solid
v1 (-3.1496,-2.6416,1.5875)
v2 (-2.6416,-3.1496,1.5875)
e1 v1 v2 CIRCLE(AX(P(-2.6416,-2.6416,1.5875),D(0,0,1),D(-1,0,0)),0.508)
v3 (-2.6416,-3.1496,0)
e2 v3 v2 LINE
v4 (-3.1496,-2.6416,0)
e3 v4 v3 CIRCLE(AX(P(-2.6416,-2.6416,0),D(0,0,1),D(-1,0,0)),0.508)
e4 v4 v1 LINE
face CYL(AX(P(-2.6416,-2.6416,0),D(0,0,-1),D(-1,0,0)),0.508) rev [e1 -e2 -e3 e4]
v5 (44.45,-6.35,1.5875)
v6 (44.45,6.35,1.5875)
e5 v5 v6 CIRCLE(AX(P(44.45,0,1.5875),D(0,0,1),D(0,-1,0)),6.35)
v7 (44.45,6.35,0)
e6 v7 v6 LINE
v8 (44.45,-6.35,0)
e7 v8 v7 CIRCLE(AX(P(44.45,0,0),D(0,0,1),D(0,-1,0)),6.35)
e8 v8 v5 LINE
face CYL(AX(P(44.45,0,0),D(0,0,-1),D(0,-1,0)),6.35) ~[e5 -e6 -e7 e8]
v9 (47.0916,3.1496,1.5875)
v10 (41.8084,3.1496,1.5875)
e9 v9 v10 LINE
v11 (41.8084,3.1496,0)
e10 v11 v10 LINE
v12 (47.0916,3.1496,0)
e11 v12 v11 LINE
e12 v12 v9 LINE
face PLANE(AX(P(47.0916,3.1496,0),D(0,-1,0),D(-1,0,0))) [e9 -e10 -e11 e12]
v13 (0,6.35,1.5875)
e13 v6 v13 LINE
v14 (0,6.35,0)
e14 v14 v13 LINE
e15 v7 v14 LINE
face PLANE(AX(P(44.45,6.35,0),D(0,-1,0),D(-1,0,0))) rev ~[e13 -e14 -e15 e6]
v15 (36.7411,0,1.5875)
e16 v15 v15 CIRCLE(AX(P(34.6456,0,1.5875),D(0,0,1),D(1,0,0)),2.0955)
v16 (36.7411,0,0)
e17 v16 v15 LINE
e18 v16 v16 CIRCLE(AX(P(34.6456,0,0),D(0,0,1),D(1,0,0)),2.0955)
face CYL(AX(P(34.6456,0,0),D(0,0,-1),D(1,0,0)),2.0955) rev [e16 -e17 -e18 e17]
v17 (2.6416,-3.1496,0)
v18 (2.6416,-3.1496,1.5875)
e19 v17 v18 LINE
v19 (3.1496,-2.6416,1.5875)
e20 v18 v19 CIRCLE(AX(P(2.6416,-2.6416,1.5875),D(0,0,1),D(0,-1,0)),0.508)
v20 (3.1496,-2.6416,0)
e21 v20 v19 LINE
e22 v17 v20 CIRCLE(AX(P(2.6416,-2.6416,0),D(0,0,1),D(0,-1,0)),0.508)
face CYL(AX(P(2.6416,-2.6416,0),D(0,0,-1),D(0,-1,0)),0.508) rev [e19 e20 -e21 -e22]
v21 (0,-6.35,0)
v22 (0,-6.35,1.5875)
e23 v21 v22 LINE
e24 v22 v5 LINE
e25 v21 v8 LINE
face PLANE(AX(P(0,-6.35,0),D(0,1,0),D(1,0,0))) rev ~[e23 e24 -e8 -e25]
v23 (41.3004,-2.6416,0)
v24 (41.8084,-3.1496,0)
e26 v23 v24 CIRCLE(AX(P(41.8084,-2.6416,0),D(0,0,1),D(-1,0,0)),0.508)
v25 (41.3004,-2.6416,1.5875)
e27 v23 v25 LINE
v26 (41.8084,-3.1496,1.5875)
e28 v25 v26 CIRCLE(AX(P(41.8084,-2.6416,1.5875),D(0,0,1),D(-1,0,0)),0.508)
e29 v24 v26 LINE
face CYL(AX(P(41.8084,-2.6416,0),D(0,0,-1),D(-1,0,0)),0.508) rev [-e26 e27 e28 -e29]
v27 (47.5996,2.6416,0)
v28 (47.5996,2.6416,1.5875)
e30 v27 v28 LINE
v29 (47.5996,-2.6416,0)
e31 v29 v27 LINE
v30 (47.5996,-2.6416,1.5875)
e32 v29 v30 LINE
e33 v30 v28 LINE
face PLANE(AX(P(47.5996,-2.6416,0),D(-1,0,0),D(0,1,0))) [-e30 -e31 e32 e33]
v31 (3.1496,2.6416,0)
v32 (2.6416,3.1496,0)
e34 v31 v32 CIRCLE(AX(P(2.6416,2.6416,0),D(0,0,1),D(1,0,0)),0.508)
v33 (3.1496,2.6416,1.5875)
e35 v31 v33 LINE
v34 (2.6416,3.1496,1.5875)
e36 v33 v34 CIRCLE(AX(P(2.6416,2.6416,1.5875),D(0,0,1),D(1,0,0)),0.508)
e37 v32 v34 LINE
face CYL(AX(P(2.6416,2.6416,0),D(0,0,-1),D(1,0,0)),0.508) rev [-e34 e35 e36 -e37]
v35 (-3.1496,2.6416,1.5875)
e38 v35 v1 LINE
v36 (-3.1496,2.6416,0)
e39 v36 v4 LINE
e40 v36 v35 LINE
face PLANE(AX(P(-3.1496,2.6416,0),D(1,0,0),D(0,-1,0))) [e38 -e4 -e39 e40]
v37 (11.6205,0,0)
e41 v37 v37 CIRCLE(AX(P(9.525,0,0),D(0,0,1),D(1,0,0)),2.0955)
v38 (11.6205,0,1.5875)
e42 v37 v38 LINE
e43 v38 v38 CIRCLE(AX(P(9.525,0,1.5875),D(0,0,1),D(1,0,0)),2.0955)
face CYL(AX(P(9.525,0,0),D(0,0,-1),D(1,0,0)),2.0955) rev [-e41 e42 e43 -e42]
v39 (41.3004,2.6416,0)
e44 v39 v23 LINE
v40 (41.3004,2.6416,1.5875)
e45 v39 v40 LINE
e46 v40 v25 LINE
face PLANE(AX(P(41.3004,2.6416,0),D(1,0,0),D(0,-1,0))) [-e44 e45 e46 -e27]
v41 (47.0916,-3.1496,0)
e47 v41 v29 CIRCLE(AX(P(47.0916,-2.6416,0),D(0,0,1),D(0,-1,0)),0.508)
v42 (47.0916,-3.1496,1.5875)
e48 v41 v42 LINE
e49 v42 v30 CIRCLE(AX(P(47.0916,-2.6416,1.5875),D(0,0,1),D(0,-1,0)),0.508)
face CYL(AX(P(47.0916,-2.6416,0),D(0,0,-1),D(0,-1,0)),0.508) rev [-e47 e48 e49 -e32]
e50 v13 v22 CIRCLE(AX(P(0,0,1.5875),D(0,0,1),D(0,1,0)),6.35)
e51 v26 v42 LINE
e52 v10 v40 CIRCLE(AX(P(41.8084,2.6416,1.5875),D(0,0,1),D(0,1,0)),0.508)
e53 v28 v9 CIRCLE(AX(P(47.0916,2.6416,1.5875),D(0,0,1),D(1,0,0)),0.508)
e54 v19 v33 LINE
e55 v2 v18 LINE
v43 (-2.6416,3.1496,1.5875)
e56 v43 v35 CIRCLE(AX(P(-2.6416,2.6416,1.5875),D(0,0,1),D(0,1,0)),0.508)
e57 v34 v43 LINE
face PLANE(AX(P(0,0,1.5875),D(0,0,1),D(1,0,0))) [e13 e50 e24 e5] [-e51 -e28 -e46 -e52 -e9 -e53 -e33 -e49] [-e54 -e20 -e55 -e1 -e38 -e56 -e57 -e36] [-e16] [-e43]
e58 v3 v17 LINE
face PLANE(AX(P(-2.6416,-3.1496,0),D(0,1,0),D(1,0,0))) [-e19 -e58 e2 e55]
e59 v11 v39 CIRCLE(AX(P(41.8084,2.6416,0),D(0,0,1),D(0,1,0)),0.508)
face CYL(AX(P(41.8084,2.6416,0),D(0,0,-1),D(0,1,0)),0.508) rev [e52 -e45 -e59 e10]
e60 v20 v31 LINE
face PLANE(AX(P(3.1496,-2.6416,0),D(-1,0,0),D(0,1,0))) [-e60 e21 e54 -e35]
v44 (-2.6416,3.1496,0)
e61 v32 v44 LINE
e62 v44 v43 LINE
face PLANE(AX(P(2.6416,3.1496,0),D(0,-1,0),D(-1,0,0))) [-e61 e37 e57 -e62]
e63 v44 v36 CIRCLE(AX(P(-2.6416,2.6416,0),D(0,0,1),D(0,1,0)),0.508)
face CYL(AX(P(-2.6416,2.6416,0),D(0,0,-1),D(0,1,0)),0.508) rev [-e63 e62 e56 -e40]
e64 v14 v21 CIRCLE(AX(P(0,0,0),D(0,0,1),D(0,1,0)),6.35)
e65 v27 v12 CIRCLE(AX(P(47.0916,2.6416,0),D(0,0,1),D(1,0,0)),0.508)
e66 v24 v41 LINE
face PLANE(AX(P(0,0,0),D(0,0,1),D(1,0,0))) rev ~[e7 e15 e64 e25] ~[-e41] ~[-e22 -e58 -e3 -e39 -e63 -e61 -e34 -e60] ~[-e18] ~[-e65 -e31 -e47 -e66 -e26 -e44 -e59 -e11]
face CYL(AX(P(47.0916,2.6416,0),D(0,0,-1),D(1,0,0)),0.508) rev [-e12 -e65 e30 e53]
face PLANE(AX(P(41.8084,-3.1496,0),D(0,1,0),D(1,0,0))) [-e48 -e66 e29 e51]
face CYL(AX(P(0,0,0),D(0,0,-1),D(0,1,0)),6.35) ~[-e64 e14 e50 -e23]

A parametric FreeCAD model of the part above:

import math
import FreeCAD as App
import Part
import Sketcher
from FreeCAD import Vector
Q = App.Units.Quantity

doc = App.newDocument("Part")
body = doc.addObject("PartDesign::Body", "Body")

sketch1 = body.newObject("Sketcher::SketchObject", "Sketch")
sketch1.AttachmentSupport = (doc.getObject("XY_Plane"), [""])
sketch1.MapMode = "FlatFace"
sketch1.addGeometry(Part.LineSegment(Vector(44.5, 6.3, 0), Vector(0, 6.3, 0)), False)
sketch1.addGeometry(Part.ArcOfCircle(Part.Circle(Vector(0, 0, 0), Vector(0, 0, 1), 6.3), math.radians(90), math.radians(270)), False)
sketch1.addGeometry(Part.LineSegment(Vector(0, -6.3, 0), Vector(44.5, -6.3, 0)), False)
sketch1.addGeometry(Part.ArcOfCircle(Part.Circle(Vector(44.5, 0, 0), Vector(0, 0, 1), 6.3), math.radians(-90), math.radians(90)), False)
sketch1.addGeometry(Part.LineSegment(Vector(2.6, -3.1, 0), Vector(-2.6, -3.1, 0)), False)
sketch1.addGeometry(Part.ArcOfCircle(Part.Circle(Vector(-2.6, -2.6, 0), Vector(0, 0, 1), 0.5), math.radians(180), math.radians(270)), False)
sketch1.addGeometry(Part.LineSegment(Vector(-3.1, -2.6, 0), Vector(-3.1, 2.6, 0)), False)
sketch1.addGeometry(Part.ArcOfCircle(Part.Circle(Vector(-2.6, 2.6, 0), Vector(0, 0, 1), 0.5), math.radians(90), math.radians(180)), False)
sketch1.addGeometry(Part.LineSegment(Vector(-2.6, 3.1, 0), Vector(2.6, 3.1, 0)), False)
sketch1.addGeometry(Part.ArcOfCircle(Part.Circle(Vector(2.6, 2.6, 0), Vector(0, 0, 1), 0.5), math.radians(0), math.radians(90)), False)
sketch1.addGeometry(Part.LineSegment(Vector(3.1, 2.6, 0), Vector(3.1, -2.6, 0)), False)
sketch1.addGeometry(Part.ArcOfCircle(Part.Circle(Vector(2.6, -2.6, 0), Vector(0, 0, 1), 0.5), math.radians(-90), math.radians(0)), False)
sketch1.addGeometry(Part.Circle(Vector(9.5, 0, 0), Vector(0, 0, 1), 2.1), False)
sketch1.addGeometry(Part.Circle(Vector(34.6, 0, 0), Vector(0, 0, 1), 2.1), False)
sketch1.addGeometry(Part.LineSegment(Vector(47.1, -3.1, 0), Vector(41.8, -3.1, 0)), False)
sketch1.addGeometry(Part.ArcOfCircle(Part.Circle(Vector(41.8, -2.6, 0), Vector(0, 0, 1), 0.5), math.radians(180), math.radians(270)), False)
sketch1.addGeometry(Part.LineSegment(Vector(41.3, -2.6, 0), Vector(41.3, 2.6, 0)), False)
sketch1.addGeometry(Part.ArcOfCircle(Part.Circle(Vector(41.8, 2.6, 0), Vector(0, 0, 1), 0.5), math.radians(90), math.radians(180)), False)
sketch1.addGeometry(Part.LineSegment(Vector(41.8, 3.1, 0), Vector(47.1, 3.1, 0)), False)
sketch1.addGeometry(Part.ArcOfCircle(Part.Circle(Vector(47.1, 2.6, 0), Vector(0, 0, 1), 0.5), math.radians(0), math.radians(90)), False)
sketch1.addGeometry(Part.LineSegment(Vector(47.6, 2.6, 0), Vector(47.6, -2.6, 0)), False)
sketch1.addGeometry(Part.ArcOfCircle(Part.Circle(Vector(47.1, -2.6, 0), Vector(0, 0, 1), 0.5), math.radians(-90), math.radians(0)), False)
sketch1.addConstraint(Sketcher.Constraint("Tangent", 0, 2, 1, 1))
sketch1.addConstraint(Sketcher.Constraint("Tangent", 1, 2, 2, 1))
sketch1.addConstraint(Sketcher.Constraint("Tangent", 2, 2, 3, 1))
sketch1.addConstraint(Sketcher.Constraint("Tangent", 3, 2, 0, 1))
sketch1.addConstraint(Sketcher.Constraint("Tangent", 4, 2, 5, 2))
sketch1.addConstraint(Sketcher.Constraint("Tangent", 5, 1, 6, 1))
sketch1.addConstraint(Sketcher.Constraint("Tangent", 6, 2, 7, 2))
sketch1.addConstraint(Sketcher.Constraint("Tangent", 7, 1, 8, 1))
sketch1.addConstraint(Sketcher.Constraint("Tangent", 8, 2, 9, 2))
sketch1.addConstraint(Sketcher.Constraint("Tangent", 9, 1, 10, 1))
sketch1.addConstraint(Sketcher.Constraint("Tangent", 10, 2, 11, 2))
sketch1.addConstraint(Sketcher.Constraint("Tangent", 11, 1, 4, 1))
sketch1.addConstraint(Sketcher.Constraint("Tangent", 14, 2, 15, 2))
sketch1.addConstraint(Sketcher.Constraint("Tangent", 15, 1, 16, 1))
sketch1.addConstraint(Sketcher.Constraint("Tangent", 16, 2, 17, 2))
sketch1.addConstraint(Sketcher.Constraint("Tangent", 17, 1, 18, 1))
sketch1.addConstraint(Sketcher.Constraint("Tangent", 18, 2, 19, 2))
sketch1.addConstraint(Sketcher.Constraint("Tangent", 19, 1, 20, 1))
sketch1.addConstraint(Sketcher.Constraint("Tangent", 20, 2, 21, 2))
sketch1.addConstraint(Sketcher.Constraint("Tangent", 21, 1, 14, 1))
sketch1.addConstraint(Sketcher.Constraint("Horizontal", 0))
sketch1.addConstraint(Sketcher.Constraint("Horizontal", 2))
sketch1.addConstraint(Sketcher.Constraint("Horizontal", 4))
sketch1.addConstraint(Sketcher.Constraint("Vertical", 6))
sketch1.addConstraint(Sketcher.Constraint("Horizontal", 8))
sketch1.addConstraint(Sketcher.Constraint("Vertical", 10))
sketch1.addConstraint(Sketcher.Constraint("Horizontal", 14))
sketch1.addConstraint(Sketcher.Constraint("Vertical", 16))
sketch1.addConstraint(Sketcher.Constraint("Horizontal", 18))
sketch1.addConstraint(Sketcher.Constraint("Vertical", 20))
sketch1.addConstraint(Sketcher.Constraint("Coincident", 1, 3, -1, 1))
sketch1.addConstraint(Sketcher.Constraint("Equal", 5, 7))
sketch1.addConstraint(Sketcher.Constraint("Equal", 7, 9))
sketch1.addConstraint(Sketcher.Constraint("Equal", 9, 11))
sketch1.addConstraint(Sketcher.Constraint("Equal", 12, 13))
sketch1.addConstraint(Sketcher.Constraint("Equal", 11, 15))
sketch1.addConstraint(Sketcher.Constraint("Equal", 15, 17))
sketch1.addConstraint(Sketcher.Constraint("Equal", 17, 19))
sketch1.addConstraint(Sketcher.Constraint("Equal", 19, 21))
sketch1.addConstraint(Sketcher.Constraint("Symmetric", 5, 3, 9, 3, -1, 1))
sketch1.addConstraint(Sketcher.Constraint("PointOnObject", 12, 3, -1))
sketch1.addConstraint(Sketcher.Constraint("PointOnObject", 13, 3, -1))
sketch1.addConstraint(Sketcher.Constraint("Horizontal", 11, 3, 15, 3))
sketch1.addConstraint(Sketcher.Constraint("Horizontal", 9, 3, 17, 3))
sketch1.addConstraint(Sketcher.Constraint("Equal", 8, 14))
sketch1.addConstraint(Sketcher.Constraint("Equal", 18, 6))
sketch1.addConstraint(Sketcher.Constraint("Radius", 1, Q("0.25 in")))
sketch1.addConstraint(Sketcher.Constraint("Radius", 5, Q("0.02 in")))
sketch1.addConstraint(Sketcher.Constraint("Diameter", 12, Q("0.165 in")))
sketch1.addConstraint(Sketcher.Constraint("DistanceX", 0, 2, 0, 1, Q("1.75 in")))
sketch1.addConstraint(Sketcher.Constraint("DistanceX", 4, 2, 4, 1, Q("0.208 in")))
sketch1.addConstraint(Sketcher.Constraint("DistanceX", 9, 3, 13, 3, Q("1.26 in")))
sketch1.addConstraint(Sketcher.Constraint("DistanceX", 13, 3, 19, 3, Q("0.49 in")))
sketch1.addConstraint(Sketcher.Constraint("DistanceX", -1, 1, 12, 3, Q("0.375 in")))
pad1 = body.newObject("PartDesign::Pad", "Pad")
pad1.Profile = sketch1
pad1.Length = Q("0.0625 in")

doc.recompute()
